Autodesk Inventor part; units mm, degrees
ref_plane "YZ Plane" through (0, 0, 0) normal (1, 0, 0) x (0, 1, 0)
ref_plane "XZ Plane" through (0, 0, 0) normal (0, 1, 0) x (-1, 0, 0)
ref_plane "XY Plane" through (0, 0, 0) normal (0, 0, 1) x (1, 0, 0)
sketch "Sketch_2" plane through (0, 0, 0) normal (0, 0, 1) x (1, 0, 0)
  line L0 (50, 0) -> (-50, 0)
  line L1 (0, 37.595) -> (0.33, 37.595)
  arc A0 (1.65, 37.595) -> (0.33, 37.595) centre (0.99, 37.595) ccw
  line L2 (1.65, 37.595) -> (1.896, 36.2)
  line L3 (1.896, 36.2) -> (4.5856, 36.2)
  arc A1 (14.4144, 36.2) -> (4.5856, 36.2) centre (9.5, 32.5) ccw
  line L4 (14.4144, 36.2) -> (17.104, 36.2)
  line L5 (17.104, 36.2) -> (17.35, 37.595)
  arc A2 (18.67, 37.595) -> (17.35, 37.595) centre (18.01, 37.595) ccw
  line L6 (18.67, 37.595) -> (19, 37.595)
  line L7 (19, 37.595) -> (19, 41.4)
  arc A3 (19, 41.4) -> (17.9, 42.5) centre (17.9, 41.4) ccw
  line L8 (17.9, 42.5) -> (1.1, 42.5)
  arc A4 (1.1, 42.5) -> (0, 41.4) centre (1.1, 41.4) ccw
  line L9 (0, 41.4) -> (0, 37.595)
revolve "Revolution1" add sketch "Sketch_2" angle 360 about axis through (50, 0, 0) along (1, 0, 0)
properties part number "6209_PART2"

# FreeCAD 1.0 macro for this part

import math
import FreeCAD as App
import Part
import Sketcher
from FreeCAD import Vector
Q = App.Units.Quantity

doc = App.newDocument("Part")
body = doc.addObject("PartDesign::Body", "Body")

sketch1 = doc.addObject("Sketcher::SketchObject", "Sketch")
body.addObject(sketch1)
sketch1.AttachmentSupport = (doc.XY_Plane, [""])
sketch1.MapMode = "FlatFace"
sketch1.addGeometry([
    Part.LineSegment(Vector(0, 41.4, 0), Vector(0, 37.59, 0)),
    Part.LineSegment(Vector(0, 37.59, 0), Vector(0.33, 37.59, 0)),
    Part.ArcOfCircle(Part.Circle(Vector(0.99, 37.59, 0), Vector(0, 0, 1), 0.66), math.radians(0), math.radians(180)),
    Part.LineSegment(Vector(1.65, 37.59, 0), Vector(1.9, 36.2, 0)),
    Part.LineSegment(Vector(1.9, 36.2, 0), Vector(4.59, 36.2, 0)),
    Part.ArcOfCircle(Part.Circle(Vector(9.5, 32.5, 0), Vector(0, 0, 1), 6.15), math.radians(37), math.radians(143)),
    Part.LineSegment(Vector(14.41, 36.2, 0), Vector(17.1, 36.2, 0)),
    Part.LineSegment(Vector(17.1, 36.2, 0), Vector(17.35, 37.59, 0)),
    Part.ArcOfCircle(Part.Circle(Vector(18.01, 37.59, 0), Vector(0, 0, 1), 0.66), math.radians(0), math.radians(180)),
    Part.LineSegment(Vector(18.67, 37.59, 0), Vector(19, 37.59, 0)),
    Part.LineSegment(Vector(19, 37.59, 0), Vector(19, 41.4, 0)),
    Part.ArcOfCircle(Part.Circle(Vector(17.9, 41.4, 0), Vector(0, 0, 1), 1.1), math.radians(0), math.radians(90)),
    Part.LineSegment(Vector(17.9, 42.5, 0), Vector(1.1, 42.5, 0)),
    Part.ArcOfCircle(Part.Circle(Vector(1.1, 41.4, 0), Vector(0, 0, 1), 1.1), math.radians(90), math.radians(180)),
], False)
sketch1.addConstraint([
    Sketcher.Constraint("Coincident", 0, 2, 1, 1),
    Sketcher.Constraint("Coincident", 1, 2, 2, 2),
    Sketcher.Constraint("Coincident", 2, 1, 3, 1),
    Sketcher.Constraint("Coincident", 3, 2, 4, 1),
    Sketcher.Constraint("Coincident", 4, 2, 5, 2),
    Sketcher.Constraint("Coincident", 5, 1, 6, 1),
    Sketcher.Constraint("Coincident", 6, 2, 7, 1),
    Sketcher.Constraint("Coincident", 7, 2, 8, 2),
    Sketcher.Constraint("Coincident", 8, 1, 9, 1),
    Sketcher.Constraint("Coincident", 9, 2, 10, 1),
    Sketcher.Constraint("Tangent", 10, 2, 11, 1),
    Sketcher.Constraint("Tangent", 11, 2, 12, 1),
    Sketcher.Constraint("Tangent", 12, 2, 13, 1),
    Sketcher.Constraint("Tangent", 13, 2, 0, 1),
    Sketcher.Constraint("Vertical", 0),
    Sketcher.Constraint("Horizontal", 1),
    Sketcher.Constraint("Horizontal", 4),
    Sketcher.Constraint("Horizontal", 6),
    Sketcher.Constraint("Horizontal", 9),
    Sketcher.Constraint("Vertical", 10),
    Sketcher.Constraint("Horizontal", 12),
    Sketcher.Constraint("Equal", 2, 8),
    Sketcher.Constraint("Equal", 11, 13),
    Sketcher.Constraint("PointOnObject", 0, 2, -2),
    Sketcher.Constraint("Horizontal", 2, 3, 8, 3),
    Sketcher.Constraint("Horizontal", 8, 3, 0, 2),
    Sketcher.Constraint("Horizontal", 1, 2, 2, 1),
    Sketcher.Constraint("Horizontal", 4, 2, 5, 1),
    Sketcher.Constraint("Horizontal", 2, 1, 7, 2),
    Sketcher.Constraint("Horizontal", 7, 2, 8, 1),
    Sketcher.Constraint("Equal", 4, 6),
    Sketcher.Constraint("Equal", 1, 9),
    Sketcher.Constraint("Equal", 3, 7),
    Sketcher.Constraint("Radius", 11, Q("1.1 mm")),
    Sketcher.Constraint("Angle", 3, Q("-79.999 deg")),
    Sketcher.Constraint("Radius", 2, Q("0.66 mm")),
    Sketcher.Constraint("DistanceX", 12, 2, 12, 1, Q("16.8 mm")),
    Sketcher.Constraint("DistanceX", 1, 1, 1, 2, Q("0.33 mm")),
    Sketcher.Constraint("DistanceY", -1, 1, 5, 3, Q("32.5 mm")),
    Sketcher.Constraint("DistanceY", -1, 1, 11, 3, Q("41.4 mm")),
    Sketcher.Constraint("DistanceY", -1, 1, 3, 2, Q("36.2 mm")),
    Sketcher.Constraint("Radius", 5, Q("6.1515 mm")),
    Sketcher.Constraint("DistanceY", 0, 2, 0, 1, Q("3.805 mm")),
])
revolution = doc.addObject("PartDesign::Revolution", "Revolution")
body.addObject(revolution)
revolution.Profile = sketch1
revolution.ReferenceAxis = (sketch1, ["H_Axis"])
revolution.Angle = 360

doc.recompute()
